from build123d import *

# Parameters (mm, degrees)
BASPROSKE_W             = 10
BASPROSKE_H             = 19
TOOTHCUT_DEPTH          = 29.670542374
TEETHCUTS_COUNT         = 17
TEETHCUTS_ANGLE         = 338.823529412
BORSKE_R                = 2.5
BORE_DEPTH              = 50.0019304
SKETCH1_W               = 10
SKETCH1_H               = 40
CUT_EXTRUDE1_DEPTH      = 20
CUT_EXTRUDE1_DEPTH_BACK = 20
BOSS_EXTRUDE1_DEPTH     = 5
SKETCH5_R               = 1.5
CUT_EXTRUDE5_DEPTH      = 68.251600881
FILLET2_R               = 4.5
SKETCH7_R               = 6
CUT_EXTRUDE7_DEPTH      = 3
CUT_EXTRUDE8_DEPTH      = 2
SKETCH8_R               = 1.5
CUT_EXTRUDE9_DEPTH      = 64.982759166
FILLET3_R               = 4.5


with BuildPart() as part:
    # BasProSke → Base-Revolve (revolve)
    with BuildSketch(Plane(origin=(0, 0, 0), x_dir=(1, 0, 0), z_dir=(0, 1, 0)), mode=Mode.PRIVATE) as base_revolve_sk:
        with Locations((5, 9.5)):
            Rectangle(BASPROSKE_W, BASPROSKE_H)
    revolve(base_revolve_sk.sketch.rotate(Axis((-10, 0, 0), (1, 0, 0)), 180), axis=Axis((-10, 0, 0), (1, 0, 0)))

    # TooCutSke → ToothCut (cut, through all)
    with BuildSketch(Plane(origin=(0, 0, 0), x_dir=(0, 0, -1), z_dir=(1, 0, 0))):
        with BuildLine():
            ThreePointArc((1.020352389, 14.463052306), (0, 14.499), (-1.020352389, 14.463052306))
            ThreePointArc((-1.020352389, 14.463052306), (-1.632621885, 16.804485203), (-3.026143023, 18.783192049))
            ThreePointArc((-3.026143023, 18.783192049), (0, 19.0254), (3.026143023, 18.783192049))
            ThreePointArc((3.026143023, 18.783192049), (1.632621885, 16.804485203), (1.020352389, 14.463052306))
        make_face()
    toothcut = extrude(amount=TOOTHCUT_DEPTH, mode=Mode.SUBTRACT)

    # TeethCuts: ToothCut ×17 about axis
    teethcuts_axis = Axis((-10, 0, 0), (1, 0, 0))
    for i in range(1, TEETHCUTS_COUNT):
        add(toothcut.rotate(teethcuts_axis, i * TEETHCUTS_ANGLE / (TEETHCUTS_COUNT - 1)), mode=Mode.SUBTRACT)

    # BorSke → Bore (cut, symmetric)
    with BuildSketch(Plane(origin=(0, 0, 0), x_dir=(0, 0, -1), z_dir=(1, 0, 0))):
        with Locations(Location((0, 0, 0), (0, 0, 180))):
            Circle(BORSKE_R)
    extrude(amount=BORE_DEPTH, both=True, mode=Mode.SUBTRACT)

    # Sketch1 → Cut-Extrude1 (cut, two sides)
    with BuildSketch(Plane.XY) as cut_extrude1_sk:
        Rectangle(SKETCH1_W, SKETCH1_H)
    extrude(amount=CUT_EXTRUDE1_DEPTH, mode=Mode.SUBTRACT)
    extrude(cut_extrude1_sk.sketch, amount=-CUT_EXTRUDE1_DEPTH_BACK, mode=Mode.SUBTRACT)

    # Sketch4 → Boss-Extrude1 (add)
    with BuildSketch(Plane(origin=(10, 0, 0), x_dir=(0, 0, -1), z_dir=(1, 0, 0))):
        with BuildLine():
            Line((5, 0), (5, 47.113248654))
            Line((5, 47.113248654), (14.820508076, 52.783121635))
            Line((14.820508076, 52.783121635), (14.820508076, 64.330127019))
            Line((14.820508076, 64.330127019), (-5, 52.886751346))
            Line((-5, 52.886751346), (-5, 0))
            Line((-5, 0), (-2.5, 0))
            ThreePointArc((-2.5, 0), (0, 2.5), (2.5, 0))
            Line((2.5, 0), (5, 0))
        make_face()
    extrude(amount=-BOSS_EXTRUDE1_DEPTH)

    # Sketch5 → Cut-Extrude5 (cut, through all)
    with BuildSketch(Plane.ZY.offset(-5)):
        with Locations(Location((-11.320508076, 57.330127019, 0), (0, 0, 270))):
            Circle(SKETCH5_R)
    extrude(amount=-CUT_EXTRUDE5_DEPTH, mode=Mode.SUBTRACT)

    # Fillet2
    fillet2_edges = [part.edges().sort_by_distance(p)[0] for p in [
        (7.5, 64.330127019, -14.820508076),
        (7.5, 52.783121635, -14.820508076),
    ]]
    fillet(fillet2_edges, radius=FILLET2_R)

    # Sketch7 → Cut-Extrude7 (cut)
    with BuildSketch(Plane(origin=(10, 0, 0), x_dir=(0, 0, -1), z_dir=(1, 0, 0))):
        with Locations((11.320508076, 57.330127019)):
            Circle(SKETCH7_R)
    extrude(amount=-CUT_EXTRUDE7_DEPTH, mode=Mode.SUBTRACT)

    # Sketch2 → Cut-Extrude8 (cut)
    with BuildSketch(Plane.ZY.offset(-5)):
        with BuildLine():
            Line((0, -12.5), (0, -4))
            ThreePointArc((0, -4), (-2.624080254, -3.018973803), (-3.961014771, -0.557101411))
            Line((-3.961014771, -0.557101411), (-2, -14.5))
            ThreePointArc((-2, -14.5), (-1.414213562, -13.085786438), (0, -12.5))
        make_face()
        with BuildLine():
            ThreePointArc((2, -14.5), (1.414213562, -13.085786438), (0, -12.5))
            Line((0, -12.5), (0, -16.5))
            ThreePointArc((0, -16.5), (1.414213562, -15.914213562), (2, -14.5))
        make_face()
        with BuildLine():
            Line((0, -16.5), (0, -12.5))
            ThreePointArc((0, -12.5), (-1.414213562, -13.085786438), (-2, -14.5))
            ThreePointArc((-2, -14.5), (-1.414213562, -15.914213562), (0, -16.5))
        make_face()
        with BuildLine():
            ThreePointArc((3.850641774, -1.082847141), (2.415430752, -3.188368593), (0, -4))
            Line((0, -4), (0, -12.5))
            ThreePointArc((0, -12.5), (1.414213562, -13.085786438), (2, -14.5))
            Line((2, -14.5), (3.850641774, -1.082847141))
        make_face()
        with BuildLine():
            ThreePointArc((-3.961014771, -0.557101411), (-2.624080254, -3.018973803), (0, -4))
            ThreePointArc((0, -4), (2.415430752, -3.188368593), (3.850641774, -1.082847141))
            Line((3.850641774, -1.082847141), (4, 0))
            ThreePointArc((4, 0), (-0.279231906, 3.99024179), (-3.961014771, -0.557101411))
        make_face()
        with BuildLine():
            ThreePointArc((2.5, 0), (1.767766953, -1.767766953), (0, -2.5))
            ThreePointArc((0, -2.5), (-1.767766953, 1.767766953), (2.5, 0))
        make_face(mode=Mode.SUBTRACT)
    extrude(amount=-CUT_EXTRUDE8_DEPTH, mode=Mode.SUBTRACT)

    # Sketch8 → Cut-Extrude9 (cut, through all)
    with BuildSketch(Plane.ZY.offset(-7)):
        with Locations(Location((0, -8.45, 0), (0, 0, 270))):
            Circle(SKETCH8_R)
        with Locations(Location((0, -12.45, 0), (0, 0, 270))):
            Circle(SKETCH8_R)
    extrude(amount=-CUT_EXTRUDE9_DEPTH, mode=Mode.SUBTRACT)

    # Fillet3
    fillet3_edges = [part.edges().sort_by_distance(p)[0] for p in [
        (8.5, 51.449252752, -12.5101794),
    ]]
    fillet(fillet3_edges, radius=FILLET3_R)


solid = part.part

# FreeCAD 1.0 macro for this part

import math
import FreeCAD as App
import Part
import Sketcher
Q = App.Units.Quantity


def edges_at(feature, points):
    """Names of the edges that pass closest to the given points."""
    edges = feature.Shape.Edges
    near = lambda p: min(range(len(edges)), key=lambda i: edges[i].distToShape(Part.Vertex(*p))[0])
    return sorted({f"Edge{near(p) + 1}" for p in points})

doc = App.newDocument("Part")
body = doc.addObject("PartDesign::Body", "Body")

# Sketch on XZ plane
sketch1 = body.newObject("Sketcher::SketchObject", "Sketch")
sketch1.AttachmentSupport = (doc.getObject("XZ_Plane"), [""])
sketch1.MapMode = "FlatFace"
sketch1.addGeometry([
    Part.LineSegment(App.Vector(0, -19, 0), App.Vector(0, 0, 0)),
    Part.LineSegment(App.Vector(0, 0, 0), App.Vector(10, 0, 0)),
    Part.LineSegment(App.Vector(10, 0, 0), App.Vector(10, -19, 0)),
    Part.LineSegment(App.Vector(10, -19, 0), App.Vector(0, -19, 0)),
], False)
sketch1.addConstraint([
    Sketcher.Constraint("Coincident", 0, 2, 1, 1),
    Sketcher.Constraint("Coincident", 1, 2, 2, 1),
    Sketcher.Constraint("Coincident", 2, 2, 3, 1),
    Sketcher.Constraint("Coincident", 3, 2, 0, 1),
    Sketcher.Constraint("Vertical", 0),
    Sketcher.Constraint("Horizontal", 1),
    Sketcher.Constraint("Vertical", 2),
    Sketcher.Constraint("Horizontal", 3),
    Sketcher.Constraint("Coincident", 0, 2, -1, 1),
    Sketcher.Constraint("DistanceX", 1, 1, 1, 2, Q("10 mm")),
    Sketcher.Constraint("DistanceY", 0, 1, 0, 2, Q("19 mm")),
])
revolution = body.newObject("PartDesign::Revolution", "Revolution")
revolution.Profile = sketch1
revolution.ReferenceAxis = (sketch1, ["H_Axis"])
revolution.Angle = 360

# Sketch on YZ plane
sketch2 = body.newObject("Sketcher::SketchObject", "Sketch001")
sketch2.AttachmentSupport = (doc.getObject("YZ_Plane"), [""])
sketch2.MapMode = "FlatFace"
sketch2.addGeometry([
    Part.ArcOfCircle(Part.Circle(App.Vector(0, 0, 0), App.Vector(0, 0, 1), 14.5), math.radians(-4.04), math.radians(4.04)),
    Part.ArcOfCircle(Part.Circle(App.Vector(13.9, -7.8, 0), App.Vector(0, 0, 1), 6.8), math.radians(45), math.radians(86)),
    Part.ArcOfCircle(Part.Circle(App.Vector(0, 0, 0), App.Vector(0, 0, 1), 19), math.radians(-9.15), math.radians(9.15)),
    Part.ArcOfCircle(Part.Circle(App.Vector(13.9, 7.8, 0), App.Vector(0, 0, 1), 6.8), math.radians(-86), math.radians(-45)),
], False)
sketch2.addConstraint([
    Sketcher.Constraint("Coincident", 0, 1, 1, 2),
    Sketcher.Constraint("Coincident", 1, 1, 2, 1),
    Sketcher.Constraint("Coincident", 2, 2, 3, 2),
    Sketcher.Constraint("Coincident", 3, 1, 0, 2),
    Sketcher.Constraint("Coincident", 0, 3, -1, 1),
    Sketcher.Constraint("Coincident", 2, 3, -1, 1),
    Sketcher.Constraint("Equal", 1, 3),
    Sketcher.Constraint("Symmetric", 1, 3, 3, 3, -1),
    Sketcher.Constraint("Radius", 1, Q("6.8 mm")),
    Sketcher.Constraint("Radius", 0, Q("14.499 mm")),
    Sketcher.Constraint("Radius", 2, Q("19.0254 mm")),
    Sketcher.Constraint("DistanceY", 0, 1, 3, 3, Q("8.820629 mm")),
    Sketcher.Constraint("DistanceX", 0, 1, 1, 1, Q("4.32014 mm")),
])
pocket1 = body.newObject("PartDesign::Pocket", "Pocket")
pocket1.Profile = sketch2
pocket1.Type = "ThroughAll"
pocket1.Reversed = True
doc.recompute()

polarpattern = body.newObject("PartDesign::PolarPattern", "PolarPattern")
polarpattern.Originals = [pocket1]
polarpattern.Axis = (doc.getObject("X_Axis"), [""])
polarpattern.Angle = 360
polarpattern.Occurrences = 17
body.Tip = polarpattern

# Sketch on YZ plane
sketch3 = body.newObject("Sketcher::SketchObject", "Sketch002")
sketch3.AttachmentSupport = (doc.getObject("YZ_Plane"), [""])
sketch3.MapMode = "FlatFace"
sketch3.addGeometry(Part.Circle(App.Vector(0, 0, 0), App.Vector(0, 0, 1), 2.5), False)
sketch3.addConstraint([
    Sketcher.Constraint("Coincident", 0, 3, -1, 1),
    Sketcher.Constraint("Diameter", 0, Q("5 mm")),
])
pocket2 = body.newObject("PartDesign::Pocket", "Pocket001")
pocket2.Profile = sketch3
pocket2.Length = 100.003861
pocket2.Midplane = True

# Sketch on XY plane
sketch4 = body.newObject("Sketcher::SketchObject", "Sketch003")
sketch4.AttachmentSupport = (doc.getObject("XY_Plane"), [""])
sketch4.MapMode = "FlatFace"
sketch4.addGeometry([
    Part.LineSegment(App.Vector(-5, 20, 0), App.Vector(-5, -20, 0)),
    Part.LineSegment(App.Vector(-5, -20, 0), App.Vector(5, -20, 0)),
    Part.LineSegment(App.Vector(5, -20, 0), App.Vector(5, 20, 0)),
    Part.LineSegment(App.Vector(5, 20, 0), App.Vector(-5, 20, 0)),
], False)
sketch4.addConstraint([
    Sketcher.Constraint("Coincident", 0, 2, 1, 1),
    Sketcher.Constraint("Coincident", 1, 2, 2, 1),
    Sketcher.Constraint("Coincident", 2, 2, 3, 1),
    Sketcher.Constraint("Coincident", 3, 2, 0, 1),
    Sketcher.Constraint("Vertical", 0),
    Sketcher.Constraint("Horizontal", 1),
    Sketcher.Constraint("Vertical", 2),
    Sketcher.Constraint("Horizontal", 3),
    Sketcher.Constraint("Symmetric", 0, 2, 2, 2, -1, 1),
    Sketcher.Constraint("DistanceX", 1, 1, 1, 2, Q("10 mm")),
    Sketcher.Constraint("DistanceY", 0, 2, 0, 1, Q("40 mm")),
])
pocket3 = body.newObject("PartDesign::Pocket", "Pocket002")
pocket3.Profile = sketch4
pocket3.Type = "ThroughAll"
pocket3.Midplane = True

# Sketch on YZ plane
sketch5 = body.newObject("Sketcher::SketchObject", "Sketch004")
sketch5.AttachmentSupport = (doc.getObject("YZ_Plane"), [""])
sketch5.MapMode = "FlatFace"
sketch5.AttachmentOffset = App.Placement(App.Vector(0, 0, 10), App.Rotation())
sketch5.addGeometry([
    Part.LineSegment(App.Vector(0, -5, 0), App.Vector(47.1, -5, 0)),  # 0
    Part.LineSegment(App.Vector(47.1, -5, 0), App.Vector(52.8, -14.8, 0)),  # 1
    Part.LineSegment(App.Vector(52.8, -14.8, 0), App.Vector(64.3, -14.8, 0)),  # 2
    Part.LineSegment(App.Vector(64.3, -14.8, 0), App.Vector(52.9, 5, 0)),  # 3
    Part.LineSegment(App.Vector(52.9, 5, 0), App.Vector(0, 5, 0)),  # 4
    Part.LineSegment(App.Vector(0, 5, 0), App.Vector(0, 2.5, 0)),  # 5
    Part.ArcOfCircle(Part.Circle(App.Vector(0, 0, 0), App.Vector(0, 0, 1), 2.5), math.radians(-90), math.radians(90)),  # 6
    Part.LineSegment(App.Vector(0, -2.5, 0), App.Vector(0, -5, 0)),  # 7
], False)
sketch5.addConstraint([
    Sketcher.Constraint("Coincident", 0, 2, 1, 1),
    Sketcher.Constraint("Coincident", 1, 2, 2, 1),
    Sketcher.Constraint("Coincident", 2, 2, 3, 1),
    Sketcher.Constraint("Coincident", 3, 2, 4, 1),
    Sketcher.Constraint("Coincident", 4, 2, 5, 1),
    Sketcher.Constraint("Coincident", 5, 2, 6, 2),
    Sketcher.Constraint("Coincident", 6, 1, 7, 1),
    Sketcher.Constraint("Coincident", 7, 2, 0, 1),
    Sketcher.Constraint("Horizontal", 0),
    Sketcher.Constraint("Horizontal", 2),
    Sketcher.Constraint("Horizontal", 4),
    Sketcher.Constraint("Vertical", 5),
    Sketcher.Constraint("Vertical", 7),
    Sketcher.Constraint("Coincident", 6, 3, -1, 1),
    Sketcher.Constraint("Symmetric", 4, 2, 7, 2, -1, 1),
    Sketcher.Constraint("PointOnObject", 4, 2, -2),
    Sketcher.Constraint("Parallel", 1, 3),
    Sketcher.Constraint("Radius", 6, Q("2.5 mm")),
    Sketcher.Constraint("Angle", 1, Q("-60 deg")),
    Sketcher.Constraint("DistanceY", 5, 2, 5, 1, Q("2.5 mm")),
    Sketcher.Constraint("DistanceX", 0, 1, 0, 2, Q("47.113249 mm")),
    Sketcher.Constraint("DistanceX", 4, 2, 4, 1, Q("52.886751 mm")),
    Sketcher.Constraint("Distance", 3, Q("22.886751 mm")),
])
pad1 = body.newObject("PartDesign::Pad", "Pad")
pad1.Profile = sketch5
pad1.Length = 5
pad1.Reversed = True

# Sketch on YZ plane
sketch6 = body.newObject("Sketcher::SketchObject", "Sketch005")
sketch6.AttachmentSupport = (doc.getObject("YZ_Plane"), [""])
sketch6.MapMode = "FlatFace"
sketch6.AttachmentOffset = App.Placement(App.Vector(0, 0, 5), App.Rotation())
sketch6.addGeometry(Part.Circle(App.Vector(57.3, -11.3, 0), App.Vector(0, 0, 1), 1.5), False)
sketch6.addConstraint([
    Sketcher.Constraint("Diameter", 0, Q("3 mm")),
    Sketcher.Constraint("DistanceY", 0, 3, -1, 1, Q("11.320508 mm")),
    Sketcher.Constraint("DistanceX", -1, 1, 0, 3, Q("57.330127 mm")),
])
pocket4 = body.newObject("PartDesign::Pocket", "Pocket003")
pocket4.Profile = sketch6
pocket4.Type = "ThroughAll"
pocket4.Reversed = True
doc.recompute()

fillet = body.newObject("PartDesign::Fillet", "Fillet")
fillet.Base = (pocket4, edges_at(pocket4, [(7.5, 64.33, -14.821), (7.5, 52.783, -14.821)]))
fillet.Radius = 4.5

# Sketch on YZ plane
sketch7 = body.newObject("Sketcher::SketchObject", "Sketch006")
sketch7.AttachmentSupport = (doc.getObject("YZ_Plane"), [""])
sketch7.MapMode = "FlatFace"
sketch7.AttachmentOffset = App.Placement(App.Vector(0, 0, 10), App.Rotation())
sketch7.addGeometry(Part.Circle(App.Vector(57, -11, 0), App.Vector(0, 0, 1), 6), False)
sketch7.addConstraint([
    Sketcher.Constraint("Diameter", 0, Q("12 mm")),
    Sketcher.Constraint("DistanceY", 0, 3, -1, 1, Q("11.320508 mm")),
    Sketcher.Constraint("DistanceX", -1, 1, 0, 3, Q("57.330127 mm")),
])
pocket5 = body.newObject("PartDesign::Pocket", "Pocket004")
pocket5.Profile = sketch7
pocket5.Length = 3

# Sketch on YZ plane
sketch8 = body.newObject("Sketcher::SketchObject", "Sketch007")
sketch8.AttachmentSupport = (doc.getObject("YZ_Plane"), [""])
sketch8.MapMode = "FlatFace"
sketch8.AttachmentOffset = App.Placement(App.Vector(0, 0, 5), App.Rotation())
sketch8.addGeometry([
    Part.LineSegment(App.Vector(-0.6, -4, 0), App.Vector(-14.5, -2, 0)),  # 0
    Part.ArcOfCircle(Part.Circle(App.Vector(-14.5, 0, 0), App.Vector(0, 0, 1), 2), math.radians(-180), math.radians(-90)),  # 1
    Part.ArcOfCircle(Part.Circle(App.Vector(-14.5, 0, 0), App.Vector(0, 0, 1), 2), math.radians(90), math.radians(180)),  # 2
    Part.LineSegment(App.Vector(-14.5, 2, 0), App.Vector(-1.1, 3.9, 0)),  # 3
    Part.LineSegment(App.Vector(-1.1, 3.9, 0), App.Vector(0, 4, 0)),  # 4
    Part.ArcOfCircle(Part.Circle(App.Vector(0, 0, 0), App.Vector(0, 0, 1), 4), math.radians(-98), math.radians(90)),  # 5
    Part.ArcOfCircle(Part.Circle(App.Vector(0, 0, 0), App.Vector(0, 0, 1), 2.5), math.radians(180), math.radians(450)),  # 6
    Part.ArcOfCircle(Part.Circle(App.Vector(0, 0, 0), App.Vector(0, 0, 1), 2.5), math.radians(90), math.radians(180)),  # 7
], False)
sketch8.addConstraint([
    Sketcher.Constraint("Coincident", 0, 2, 1, 2),
    Sketcher.Constraint("Tangent", 1, 1, 2, 2),
    Sketcher.Constraint("Coincident", 2, 1, 3, 1),
    Sketcher.Constraint("Coincident", 3, 2, 4, 1),
    Sketcher.Constraint("Coincident", 4, 2, 5, 2),
    Sketcher.Constraint("Tangent", 5, 1, 0, 1),
    Sketcher.Constraint("Tangent", 6, 1, 7, 2),
    Sketcher.Constraint("Coincident", 7, 1, 6, 2),
    Sketcher.Constraint("Coincident", 5, 3, -1, 1),
    Sketcher.Constraint("Coincident", 6, 3, -1, 1),
    Sketcher.Constraint("Equal", 1, 2),
    Sketcher.Constraint("Symmetric", 0, 2, 2, 1, -1),
    Sketcher.Constraint("PointOnObject", 1, 1, -1),
    Sketcher.Constraint("PointOnObject", 4, 2, -2),
    Sketcher.Constraint("PointOnObject", 6, 1, -1),
    Sketcher.Constraint("PointOnObject", 7, 1, -2),
    Sketcher.Constraint("Parallel", 3, 4),
    Sketcher.Constraint("Vertical", 2, 3, 0, 2),
    Sketcher.Constraint("Radius", 1, Q("2 mm")),
    Sketcher.Constraint("Radius", 5, Q("4 mm")),
    Sketcher.Constraint("Radius", 6, Q("2.5 mm")),
    Sketcher.Constraint("DistanceX", 1, 3, -1, 1, Q("14.5 mm")),
    Sketcher.Constraint("Distance", 4, Q("1.093099 mm")),
])
pocket6 = body.newObject("PartDesign::Pocket", "Pocket005")
pocket6.Profile = sketch8
pocket6.Length = 2
pocket6.Reversed = True

# Sketch on YZ plane
sketch9 = body.newObject("Sketcher::SketchObject", "Sketch008")
sketch9.AttachmentSupport = (doc.getObject("YZ_Plane"), [""])
sketch9.MapMode = "FlatFace"
sketch9.AttachmentOffset = App.Placement(App.Vector(0, 0, 7), App.Rotation())
sketch9.addGeometry([
    Part.Circle(App.Vector(-8.4, 0, 0), App.Vector(0, 0, 1), 1.5),
    Part.Circle(App.Vector(-12.4, 0, 0), App.Vector(0, 0, 1), 1.5),
], False)
sketch9.addConstraint([
    Sketcher.Constraint("Equal", 0, 1),
    Sketcher.Constraint("PointOnObject", 0, 3, -1),
    Sketcher.Constraint("PointOnObject", 1, 3, -1),
    Sketcher.Constraint("Diameter", 0, Q("3 mm")),
    Sketcher.Constraint("DistanceX", 1, 3, 0, 3, Q("4 mm")),
    Sketcher.Constraint("DistanceX", 0, 3, -1, 1, Q("8.45 mm")),
])
pocket7 = body.newObject("PartDesign::Pocket", "Pocket006")
pocket7.Profile = sketch9
pocket7.Type = "ThroughAll"
pocket7.Reversed = True
doc.recompute()

fillet2 = body.newObject("PartDesign::Fillet", "Fillet001")
fillet2.Base = (pocket7, edges_at(pocket7, [(8.5, 51.449, -12.51)]))
fillet2.Radius = 4.5

doc.recompute()
